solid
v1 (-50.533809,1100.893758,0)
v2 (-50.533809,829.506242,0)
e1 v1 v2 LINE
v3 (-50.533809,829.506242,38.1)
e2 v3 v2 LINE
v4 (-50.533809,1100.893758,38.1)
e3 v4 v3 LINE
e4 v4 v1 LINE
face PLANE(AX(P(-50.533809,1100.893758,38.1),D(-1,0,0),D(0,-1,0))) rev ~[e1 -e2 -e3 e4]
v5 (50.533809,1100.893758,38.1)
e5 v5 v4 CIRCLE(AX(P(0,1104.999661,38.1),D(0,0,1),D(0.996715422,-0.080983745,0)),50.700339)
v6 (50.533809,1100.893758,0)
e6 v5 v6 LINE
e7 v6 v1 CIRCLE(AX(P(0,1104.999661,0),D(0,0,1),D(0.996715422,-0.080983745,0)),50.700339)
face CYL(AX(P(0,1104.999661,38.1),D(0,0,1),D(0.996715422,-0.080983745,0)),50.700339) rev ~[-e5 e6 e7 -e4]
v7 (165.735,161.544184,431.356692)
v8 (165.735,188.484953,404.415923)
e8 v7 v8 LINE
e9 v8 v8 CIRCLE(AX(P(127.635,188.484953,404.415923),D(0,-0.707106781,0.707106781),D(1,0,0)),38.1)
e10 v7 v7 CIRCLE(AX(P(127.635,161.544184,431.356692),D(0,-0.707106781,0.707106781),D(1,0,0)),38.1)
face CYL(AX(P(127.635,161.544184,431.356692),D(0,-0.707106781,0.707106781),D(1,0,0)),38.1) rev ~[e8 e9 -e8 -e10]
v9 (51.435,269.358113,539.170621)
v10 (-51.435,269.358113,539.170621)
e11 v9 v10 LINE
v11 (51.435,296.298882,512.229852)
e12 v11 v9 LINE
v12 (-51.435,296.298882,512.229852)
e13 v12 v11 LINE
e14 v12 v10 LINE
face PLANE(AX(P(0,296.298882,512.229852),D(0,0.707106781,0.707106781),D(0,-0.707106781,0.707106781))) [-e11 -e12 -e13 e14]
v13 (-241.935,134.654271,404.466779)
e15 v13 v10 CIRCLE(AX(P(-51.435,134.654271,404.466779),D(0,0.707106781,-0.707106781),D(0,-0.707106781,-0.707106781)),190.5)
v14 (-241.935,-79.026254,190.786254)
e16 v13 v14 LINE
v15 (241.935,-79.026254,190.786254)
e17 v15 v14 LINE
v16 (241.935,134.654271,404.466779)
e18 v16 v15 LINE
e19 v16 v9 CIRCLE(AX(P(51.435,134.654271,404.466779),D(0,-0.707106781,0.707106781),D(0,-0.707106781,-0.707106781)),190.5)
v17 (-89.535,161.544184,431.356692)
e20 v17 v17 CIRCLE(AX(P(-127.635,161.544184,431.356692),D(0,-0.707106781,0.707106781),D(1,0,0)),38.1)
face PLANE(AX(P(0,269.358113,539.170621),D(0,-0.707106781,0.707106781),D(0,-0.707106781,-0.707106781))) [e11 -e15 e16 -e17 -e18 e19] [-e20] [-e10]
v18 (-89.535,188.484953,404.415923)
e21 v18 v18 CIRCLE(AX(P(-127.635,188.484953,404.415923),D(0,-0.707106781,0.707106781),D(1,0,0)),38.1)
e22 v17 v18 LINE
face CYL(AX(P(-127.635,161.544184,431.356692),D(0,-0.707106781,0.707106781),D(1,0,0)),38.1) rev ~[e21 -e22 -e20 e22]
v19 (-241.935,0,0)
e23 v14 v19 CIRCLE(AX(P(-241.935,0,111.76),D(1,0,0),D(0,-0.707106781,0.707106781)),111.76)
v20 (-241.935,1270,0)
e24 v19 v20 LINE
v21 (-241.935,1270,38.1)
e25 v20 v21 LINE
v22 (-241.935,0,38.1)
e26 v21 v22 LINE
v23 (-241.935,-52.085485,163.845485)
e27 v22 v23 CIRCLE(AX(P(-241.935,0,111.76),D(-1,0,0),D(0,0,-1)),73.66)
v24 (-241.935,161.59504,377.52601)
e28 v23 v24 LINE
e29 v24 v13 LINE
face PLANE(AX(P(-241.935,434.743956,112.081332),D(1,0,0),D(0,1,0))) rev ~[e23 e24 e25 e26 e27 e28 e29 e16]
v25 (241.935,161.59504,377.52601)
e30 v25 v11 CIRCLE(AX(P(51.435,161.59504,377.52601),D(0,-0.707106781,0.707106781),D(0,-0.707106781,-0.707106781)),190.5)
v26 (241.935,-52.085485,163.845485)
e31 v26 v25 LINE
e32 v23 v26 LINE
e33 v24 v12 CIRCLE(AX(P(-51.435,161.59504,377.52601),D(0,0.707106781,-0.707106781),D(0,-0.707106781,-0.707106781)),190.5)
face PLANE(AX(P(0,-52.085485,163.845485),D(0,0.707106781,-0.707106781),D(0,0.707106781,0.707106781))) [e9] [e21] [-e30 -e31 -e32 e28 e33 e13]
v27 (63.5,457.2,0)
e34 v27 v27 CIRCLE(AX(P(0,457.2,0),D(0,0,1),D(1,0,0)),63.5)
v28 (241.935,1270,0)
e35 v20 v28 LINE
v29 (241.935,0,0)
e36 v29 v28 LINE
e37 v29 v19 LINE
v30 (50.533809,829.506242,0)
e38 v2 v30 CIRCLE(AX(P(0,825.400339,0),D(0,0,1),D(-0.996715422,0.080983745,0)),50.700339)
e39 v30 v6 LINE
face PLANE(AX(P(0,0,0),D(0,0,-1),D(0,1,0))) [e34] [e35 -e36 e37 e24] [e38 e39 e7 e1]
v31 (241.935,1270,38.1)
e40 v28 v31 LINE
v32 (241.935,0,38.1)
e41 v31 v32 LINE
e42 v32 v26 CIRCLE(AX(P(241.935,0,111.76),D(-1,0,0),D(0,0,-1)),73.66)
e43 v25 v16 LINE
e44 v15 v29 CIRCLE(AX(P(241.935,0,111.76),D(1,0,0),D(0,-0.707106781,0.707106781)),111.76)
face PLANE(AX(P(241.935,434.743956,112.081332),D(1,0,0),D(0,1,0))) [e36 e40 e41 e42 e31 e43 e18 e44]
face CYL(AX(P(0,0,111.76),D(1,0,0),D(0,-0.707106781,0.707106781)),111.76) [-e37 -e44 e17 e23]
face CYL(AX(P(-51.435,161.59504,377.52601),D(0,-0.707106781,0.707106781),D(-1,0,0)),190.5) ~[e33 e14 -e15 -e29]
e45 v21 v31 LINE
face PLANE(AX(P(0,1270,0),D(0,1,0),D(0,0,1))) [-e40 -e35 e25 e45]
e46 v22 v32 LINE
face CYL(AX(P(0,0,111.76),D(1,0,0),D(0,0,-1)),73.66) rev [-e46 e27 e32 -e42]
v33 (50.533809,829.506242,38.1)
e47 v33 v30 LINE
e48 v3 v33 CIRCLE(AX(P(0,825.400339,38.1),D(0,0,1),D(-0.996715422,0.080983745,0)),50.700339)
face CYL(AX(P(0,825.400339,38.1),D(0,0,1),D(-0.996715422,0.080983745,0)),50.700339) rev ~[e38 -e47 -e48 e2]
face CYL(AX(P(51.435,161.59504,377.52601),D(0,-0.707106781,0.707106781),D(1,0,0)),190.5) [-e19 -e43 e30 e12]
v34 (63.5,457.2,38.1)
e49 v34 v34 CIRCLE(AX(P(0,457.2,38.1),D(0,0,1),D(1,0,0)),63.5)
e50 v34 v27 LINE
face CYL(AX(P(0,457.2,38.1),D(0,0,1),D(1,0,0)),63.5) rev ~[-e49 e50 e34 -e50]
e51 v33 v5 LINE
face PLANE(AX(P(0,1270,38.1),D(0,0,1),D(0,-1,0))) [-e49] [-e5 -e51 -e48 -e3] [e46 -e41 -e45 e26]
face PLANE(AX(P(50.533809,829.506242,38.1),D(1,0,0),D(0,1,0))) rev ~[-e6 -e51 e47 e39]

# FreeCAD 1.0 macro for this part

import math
import FreeCAD as App
import Part
import Sketcher

V = App.Vector
Q = App.Units.Quantity


def edges_at(feature, points):
    """Names of the edges that pass closest to the given points."""
    edges = feature.Shape.Edges
    near = lambda p: min(range(len(edges)), key=lambda i: edges[i].distToShape(Part.Vertex(*p))[0])
    return sorted({f"Edge{near(p) + 1}" for p in points})

doc = App.newDocument("Part")
body = doc.addObject("PartDesign::Body", "Body")

# Sketch on YZ plane
sketch1 = body.newObject("Sketcher::SketchObject", "Sketch")
sketch1.AttachmentSupport = (doc.getObject("YZ_Plane"), [""])
sketch1.MapMode = "FlatFace"
sketch1.addGeometry(Part.LineSegment(V(0, 0, 0), V(1270, 0, 0)), False)
sketch1.addGeometry(Part.LineSegment(V(1270, 0, 0), V(1270, 38, 0)), False)
sketch1.addGeometry(Part.LineSegment(V(1270, 38, 0), V(0, 38, 0)), False)
sketch1.addGeometry(Part.ArcOfCircle(Part.Circle(V(0, 112, 0), V(0, 0, 1), 74), math.radians(135), math.radians(270)), False)
sketch1.addGeometry(Part.LineSegment(V(-52, 164, 0), V(296, 512, 0)), False)
sketch1.addGeometry(Part.LineSegment(V(296, 512, 0), V(269, 539, 0)), False)
sketch1.addGeometry(Part.LineSegment(V(269, 539, 0), V(-79, 191, 0)), False)
sketch1.addGeometry(Part.ArcOfCircle(Part.Circle(V(0, 112, 0), V(0, 0, 1), 112), math.radians(135), math.radians(270)), False)
sketch1.addConstraint(Sketcher.Constraint("Coincident", 0, 2, 1, 1))
sketch1.addConstraint(Sketcher.Constraint("Coincident", 1, 2, 2, 1))
sketch1.addConstraint(Sketcher.Constraint("Tangent", 2, 2, 3, 2))
sketch1.addConstraint(Sketcher.Constraint("Tangent", 3, 1, 4, 1))
sketch1.addConstraint(Sketcher.Constraint("Coincident", 4, 2, 5, 1))
sketch1.addConstraint(Sketcher.Constraint("Coincident", 5, 2, 6, 1))
sketch1.addConstraint(Sketcher.Constraint("Tangent", 6, 2, 7, 1))
sketch1.addConstraint(Sketcher.Constraint("Tangent", 7, 2, 0, 1))
sketch1.addConstraint(Sketcher.Constraint("Horizontal", 0))
sketch1.addConstraint(Sketcher.Constraint("Vertical", 1))
sketch1.addConstraint(Sketcher.Constraint("Horizontal", 2))
sketch1.addConstraint(Sketcher.Constraint("Coincident", 7, 2, -1, 1))
sketch1.addConstraint(Sketcher.Constraint("Coincident", 7, 3, 3, 3))
sketch1.addConstraint(Sketcher.Constraint("Perpendicular", 4, 5))
sketch1.addConstraint(Sketcher.Constraint("Perpendicular", 5, 6))
sketch1.addConstraint(Sketcher.Constraint("Radius", 3, Q("2.9 in")))
sketch1.addConstraint(Sketcher.Constraint("Radius", 7, Q("4.4 in")))
sketch1.addConstraint(Sketcher.Constraint("DistanceX", 0, 1, 0, 2, Q("50 in")))
sketch1.addConstraint(Sketcher.Constraint("Angle", 4, Q("45 deg")))
sketch1.addConstraint(Sketcher.Constraint("DistanceX", 3, 1, 5, 2, Q("321.443598 mm")))
pad1 = body.newObject("PartDesign::Pad", "Pad")
pad1.Profile = sketch1
pad1.Length = Q("19.05 in")
pad1.Midplane = True

# Sketch on an angled plane
sketch2 = body.newObject("Sketcher::SketchObject", "Sketch001")
sketch2.Placement = App.Placement(V(0, -134.906254, 134.906254), App.Rotation(V(1, 0, 0), V(0, 0.707106781, 0.707106781), V(0, -0.707106781, 0.707106781), "ZXY"))
sketch2.addGeometry(Part.Circle(V(-128, 419, 0), V(0, 0, 1), 38), False)
sketch2.addGeometry(Part.Circle(V(128, 419, 0), V(0, 0, 1), 38), False)
sketch2.addConstraint(Sketcher.Constraint("Equal", 0, 1))
sketch2.addConstraint(Sketcher.Constraint("Symmetric", 0, 3, 1, 3, -2))
sketch2.addConstraint(Sketcher.Constraint("Diameter", 0, Q("3 in")))
sketch2.addConstraint(Sketcher.Constraint("DistanceX", 0, 3, 1, 3, Q("10.05 in")))
sketch2.addConstraint(Sketcher.Constraint("DistanceY", -1, 1, 0, 3, Q("419.24423 mm")))
pocket1 = body.newObject("PartDesign::Pocket", "Pocket")
pocket1.Profile = sketch2
pocket1.Length = Q("1.5 in")

# Sketch on XY plane
sketch3 = body.newObject("Sketcher::SketchObject", "Sketch002")
sketch3.AttachmentSupport = (doc.getObject("XY_Plane"), [""])
sketch3.MapMode = "FlatFace"
sketch3.AttachmentOffset = App.Placement(V(0, 0, 1.5 * 25.4), App.Rotation())
sketch3.addGeometry(Part.Circle(V(0, 457, 0), V(0, 0, 1), 64), False)
sketch3.addGeometry(Part.LineSegment(V(-51, 1101, 0), V(-51, 830, 0)), False)
sketch3.addGeometry(Part.ArcOfCircle(Part.Circle(V(0, 825, 0), V(0, 0, 1), 51), math.radians(175), math.radians(365)), False)
sketch3.addGeometry(Part.LineSegment(V(51, 830, 0), V(51, 1101, 0)), False)
sketch3.addGeometry(Part.ArcOfCircle(Part.Circle(V(0, 1105, 0), V(0, 0, 1), 51), math.radians(-5), math.radians(185)), False)
sketch3.addConstraint(Sketcher.Constraint("Coincident", 1, 2, 2, 1))
sketch3.addConstraint(Sketcher.Constraint("Coincident", 2, 2, 3, 1))
sketch3.addConstraint(Sketcher.Constraint("Coincident", 3, 2, 4, 1))
sketch3.addConstraint(Sketcher.Constraint("Coincident", 4, 2, 1, 1))
sketch3.addConstraint(Sketcher.Constraint("Vertical", 1))
sketch3.addConstraint(Sketcher.Constraint("Vertical", 3))
sketch3.addConstraint(Sketcher.Constraint("Equal", 2, 4))
sketch3.addConstraint(Sketcher.Constraint("Symmetric", 1, 2, 2, 2, -2))
sketch3.addConstraint(Sketcher.Constraint("PointOnObject", 0, 3, -2))
sketch3.addConstraint(Sketcher.Constraint("PointOnObject", 4, 3, -2))
sketch3.addConstraint(Sketcher.Constraint("Diameter", 0, Q("5 in")))
sketch3.addConstraint(Sketcher.Constraint("DistanceY", -1, 1, 0, 3, Q("18 in")))
sketch3.addConstraint(Sketcher.Constraint("Radius", 2, Q("50.700339 mm")))
sketch3.addConstraint(Sketcher.Constraint("DistanceY", 1, 2, 1, 1, Q("271.387516 mm")))
sketch3.addConstraint(Sketcher.Constraint("DistanceY", -1, 1, 2, 3, Q("825.400339 mm")))
sketch3.addConstraint(Sketcher.Constraint("DistanceY", -1, 1, 4, 3, Q("1104.999661 mm")))
pocket2 = body.newObject("PartDesign::Pocket", "Pocket001")
pocket2.Profile = sketch3
pocket2.Type = "ThroughAll"
doc.recompute()

fillet = body.newObject("PartDesign::Fillet", "Fillet")
fillet.Base = (pocket2, edges_at(pocket2, [(-241.935, 282.828, 525.7), (241.935, 282.828, 525.7)]))
fillet.Radius = Q("7.5 in")

doc.recompute()
